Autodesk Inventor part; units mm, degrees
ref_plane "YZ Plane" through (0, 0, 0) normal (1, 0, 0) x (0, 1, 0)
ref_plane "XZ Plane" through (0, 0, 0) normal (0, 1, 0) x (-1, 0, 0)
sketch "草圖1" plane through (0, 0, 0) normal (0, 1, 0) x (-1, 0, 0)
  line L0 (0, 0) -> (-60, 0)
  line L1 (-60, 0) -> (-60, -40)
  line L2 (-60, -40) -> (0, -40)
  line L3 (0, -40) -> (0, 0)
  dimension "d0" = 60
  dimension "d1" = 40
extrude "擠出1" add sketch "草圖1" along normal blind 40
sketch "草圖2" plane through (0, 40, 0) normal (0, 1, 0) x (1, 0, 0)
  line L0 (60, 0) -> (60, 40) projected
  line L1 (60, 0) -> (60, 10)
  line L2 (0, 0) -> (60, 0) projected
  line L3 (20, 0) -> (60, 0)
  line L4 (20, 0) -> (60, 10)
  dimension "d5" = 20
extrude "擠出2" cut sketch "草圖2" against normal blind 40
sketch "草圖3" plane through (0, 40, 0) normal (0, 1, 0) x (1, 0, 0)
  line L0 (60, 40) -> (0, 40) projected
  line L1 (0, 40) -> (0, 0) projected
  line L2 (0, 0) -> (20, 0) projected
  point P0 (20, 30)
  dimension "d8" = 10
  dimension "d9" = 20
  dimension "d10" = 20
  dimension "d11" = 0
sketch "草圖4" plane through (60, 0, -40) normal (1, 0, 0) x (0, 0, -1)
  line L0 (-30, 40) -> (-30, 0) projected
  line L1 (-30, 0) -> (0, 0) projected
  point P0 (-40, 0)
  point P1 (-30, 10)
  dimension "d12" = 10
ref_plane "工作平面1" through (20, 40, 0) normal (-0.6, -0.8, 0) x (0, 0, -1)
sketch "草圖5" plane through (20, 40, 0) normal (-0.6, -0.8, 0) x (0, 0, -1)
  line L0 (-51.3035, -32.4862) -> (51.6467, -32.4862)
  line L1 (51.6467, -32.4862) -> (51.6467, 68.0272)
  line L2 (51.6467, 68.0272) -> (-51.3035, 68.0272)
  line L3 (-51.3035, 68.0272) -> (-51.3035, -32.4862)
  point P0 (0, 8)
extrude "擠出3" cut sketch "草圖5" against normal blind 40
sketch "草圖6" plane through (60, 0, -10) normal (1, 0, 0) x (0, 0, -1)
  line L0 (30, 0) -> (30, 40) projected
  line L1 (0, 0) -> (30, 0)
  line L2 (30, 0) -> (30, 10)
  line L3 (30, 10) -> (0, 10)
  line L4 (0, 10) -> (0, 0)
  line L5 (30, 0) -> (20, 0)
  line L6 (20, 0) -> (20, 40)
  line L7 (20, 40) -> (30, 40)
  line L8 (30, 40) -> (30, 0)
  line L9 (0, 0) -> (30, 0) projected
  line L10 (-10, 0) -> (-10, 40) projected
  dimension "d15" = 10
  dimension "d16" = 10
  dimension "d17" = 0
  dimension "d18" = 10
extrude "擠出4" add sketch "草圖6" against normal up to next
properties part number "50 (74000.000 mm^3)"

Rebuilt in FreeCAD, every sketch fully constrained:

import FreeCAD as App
import Part
import Sketcher
from FreeCAD import Vector
Q = App.Units.Quantity

doc = App.newDocument("Part")
body = doc.addObject("PartDesign::Body", "Body")

# Sketch on XZ plane
sketch1 = body.newObject("Sketcher::SketchObject", "Sketch")
sketch1.AttachmentSupport = (doc.getObject("XZ_Plane"), [""])
sketch1.MapMode = "FlatFace"
sketch1.addGeometry([
    Part.LineSegment(Vector(0, -40, 0), Vector(0, 0, 0)),
    Part.LineSegment(Vector(0, 0, 0), Vector(60, 0, 0)),
    Part.LineSegment(Vector(60, 0, 0), Vector(60, -40, 0)),
    Part.LineSegment(Vector(60, -40, 0), Vector(0, -40, 0)),
], False)
sketch1.addConstraint([
    Sketcher.Constraint("Coincident", 0, 2, 1, 1),
    Sketcher.Constraint("Coincident", 1, 2, 2, 1),
    Sketcher.Constraint("Coincident", 2, 2, 3, 1),
    Sketcher.Constraint("Coincident", 3, 2, 0, 1),
    Sketcher.Constraint("Vertical", 0),
    Sketcher.Constraint("Horizontal", 1),
    Sketcher.Constraint("Vertical", 2),
    Sketcher.Constraint("Horizontal", 3),
    Sketcher.Constraint("Coincident", 0, 2, -1, 1),
    Sketcher.Constraint("DistanceX", 1, 1, 1, 2, Q("60 mm")),
    Sketcher.Constraint("DistanceY", 0, 1, 0, 2, Q("40 mm")),
])
pad1 = body.newObject("PartDesign::Pad", "Pad")
pad1.Profile = sketch1
pad1.Length = 40
pad1.Reversed = True

# Sketch on XZ plane
sketch2 = body.newObject("Sketcher::SketchObject", "Sketch001")
sketch2.AttachmentSupport = (doc.getObject("XZ_Plane"), [""])
sketch2.MapMode = "FlatFace"
sketch2.AttachmentOffset = App.Placement(Vector(0, 0, -40), App.Rotation())
sketch2.addGeometry([
    Part.LineSegment(Vector(20, 0, 0), Vector(60, 0, 0)),
    Part.LineSegment(Vector(60, 0, 0), Vector(60, -10, 0)),
    Part.LineSegment(Vector(60, -10, 0), Vector(20, 0, 0)),
], False)
sketch2.addConstraint([
    Sketcher.Constraint("Coincident", 0, 2, 1, 1),
    Sketcher.Constraint("Coincident", 1, 2, 2, 1),
    Sketcher.Constraint("Coincident", 2, 2, 0, 1),
    Sketcher.Constraint("Horizontal", 0),
    Sketcher.Constraint("Vertical", 1),
    Sketcher.Constraint("PointOnObject", 0, 2, -1),
    Sketcher.Constraint("DistanceX", -1, 1, 2, 2, Q("20 mm")),
    Sketcher.Constraint("DistanceX", 0, 1, 0, 2, Q("40 mm")),
    Sketcher.Constraint("DistanceY", 1, 2, 1, 1, Q("10 mm")),
])
pocket1 = body.newObject("PartDesign::Pocket", "Pocket")
pocket1.Profile = sketch2
pocket1.Length = 40
pocket1.Reversed = True

# Sketch on an angled plane
sketch3 = body.newObject("Sketcher::SketchObject", "Sketch002")
sketch3.Placement = App.Placement(Vector(20, 40, 0), App.Rotation(Vector(0, 0, -1), Vector(0.8, -0.6, 0), Vector(-0.6, -0.8, 0), "ZXY"))
sketch3.addGeometry([
    Part.LineSegment(Vector(-51, 68, 0), Vector(-51, -32, 0)),
    Part.LineSegment(Vector(-51, -32, 0), Vector(52, -32, 0)),
    Part.LineSegment(Vector(52, -32, 0), Vector(52, 68, 0)),
    Part.LineSegment(Vector(52, 68, 0), Vector(-51, 68, 0)),
], False)
sketch3.addConstraint([
    Sketcher.Constraint("Coincident", 0, 2, 1, 1),
    Sketcher.Constraint("Coincident", 1, 2, 2, 1),
    Sketcher.Constraint("Coincident", 2, 2, 3, 1),
    Sketcher.Constraint("Coincident", 3, 2, 0, 1),
    Sketcher.Constraint("Vertical", 0),
    Sketcher.Constraint("Horizontal", 1),
    Sketcher.Constraint("Vertical", 2),
    Sketcher.Constraint("Horizontal", 3),
    Sketcher.Constraint("DistanceX", 1, 1, 1, 2, Q("102.9502 mm")),
    Sketcher.Constraint("DistanceY", 0, 2, 0, 1, Q("100.5134 mm")),
    Sketcher.Constraint("DistanceX", 0, 2, -1, 1, Q("51.3035 mm")),
    Sketcher.Constraint("DistanceY", 0, 2, -1, 1, Q("32.4862 mm")),
])
pocket2 = body.newObject("PartDesign::Pocket", "Pocket001")
pocket2.Profile = sketch3
pocket2.Length = 40

# Sketch on YZ plane
sketch4 = body.newObject("Sketcher::SketchObject", "Sketch003")
sketch4.AttachmentSupport = (doc.getObject("YZ_Plane"), [""])
sketch4.MapMode = "FlatFace"
sketch4.AttachmentOffset = App.Placement(Vector(0, 0, 60), App.Rotation())
sketch4.addGeometry([
    Part.LineSegment(Vector(0, -40, 0), Vector(40, -40, 0)),  # 0
    Part.LineSegment(Vector(40, -40, 0), Vector(40, -30, 0)),  # 1
    Part.LineSegment(Vector(40, -30, 0), Vector(10, -30, 0)),  # 2
    Part.LineSegment(Vector(10, -30, 0), Vector(10, -10, 0)),  # 3
    Part.LineSegment(Vector(10, -10, 0), Vector(0, -10, 0)),  # 4
    Part.LineSegment(Vector(0, -10, 0), Vector(0, -40, 0)),  # 5
], False)
sketch4.addConstraint([
    Sketcher.Constraint("Coincident", 0, 2, 1, 1),
    Sketcher.Constraint("Coincident", 1, 2, 2, 1),
    Sketcher.Constraint("Coincident", 2, 2, 3, 1),
    Sketcher.Constraint("Coincident", 3, 2, 4, 1),
    Sketcher.Constraint("Coincident", 4, 2, 5, 1),
    Sketcher.Constraint("Coincident", 5, 2, 0, 1),
    Sketcher.Constraint("Horizontal", 0),
    Sketcher.Constraint("Vertical", 1),
    Sketcher.Constraint("Horizontal", 2),
    Sketcher.Constraint("Vertical", 3),
    Sketcher.Constraint("Horizontal", 4),
    Sketcher.Constraint("Vertical", 5),
    Sketcher.Constraint("PointOnObject", 4, 2, -2),
    Sketcher.Constraint("Equal", 4, 1),
    Sketcher.Constraint("Equal", 2, 5),
    Sketcher.Constraint("DistanceX", 4, 2, 4, 1, Q("10 mm")),
    Sketcher.Constraint("DistanceY", 3, 2, -1, 1, Q("10 mm")),
    Sketcher.Constraint("DistanceX", 0, 1, 0, 2, Q("40 mm")),
])
pad2 = body.newObject("PartDesign::Pad", "Pad001")
pad2.Profile = sketch4
pad2.Length = 40.0033
pad2.Reversed = True

doc.recompute()
